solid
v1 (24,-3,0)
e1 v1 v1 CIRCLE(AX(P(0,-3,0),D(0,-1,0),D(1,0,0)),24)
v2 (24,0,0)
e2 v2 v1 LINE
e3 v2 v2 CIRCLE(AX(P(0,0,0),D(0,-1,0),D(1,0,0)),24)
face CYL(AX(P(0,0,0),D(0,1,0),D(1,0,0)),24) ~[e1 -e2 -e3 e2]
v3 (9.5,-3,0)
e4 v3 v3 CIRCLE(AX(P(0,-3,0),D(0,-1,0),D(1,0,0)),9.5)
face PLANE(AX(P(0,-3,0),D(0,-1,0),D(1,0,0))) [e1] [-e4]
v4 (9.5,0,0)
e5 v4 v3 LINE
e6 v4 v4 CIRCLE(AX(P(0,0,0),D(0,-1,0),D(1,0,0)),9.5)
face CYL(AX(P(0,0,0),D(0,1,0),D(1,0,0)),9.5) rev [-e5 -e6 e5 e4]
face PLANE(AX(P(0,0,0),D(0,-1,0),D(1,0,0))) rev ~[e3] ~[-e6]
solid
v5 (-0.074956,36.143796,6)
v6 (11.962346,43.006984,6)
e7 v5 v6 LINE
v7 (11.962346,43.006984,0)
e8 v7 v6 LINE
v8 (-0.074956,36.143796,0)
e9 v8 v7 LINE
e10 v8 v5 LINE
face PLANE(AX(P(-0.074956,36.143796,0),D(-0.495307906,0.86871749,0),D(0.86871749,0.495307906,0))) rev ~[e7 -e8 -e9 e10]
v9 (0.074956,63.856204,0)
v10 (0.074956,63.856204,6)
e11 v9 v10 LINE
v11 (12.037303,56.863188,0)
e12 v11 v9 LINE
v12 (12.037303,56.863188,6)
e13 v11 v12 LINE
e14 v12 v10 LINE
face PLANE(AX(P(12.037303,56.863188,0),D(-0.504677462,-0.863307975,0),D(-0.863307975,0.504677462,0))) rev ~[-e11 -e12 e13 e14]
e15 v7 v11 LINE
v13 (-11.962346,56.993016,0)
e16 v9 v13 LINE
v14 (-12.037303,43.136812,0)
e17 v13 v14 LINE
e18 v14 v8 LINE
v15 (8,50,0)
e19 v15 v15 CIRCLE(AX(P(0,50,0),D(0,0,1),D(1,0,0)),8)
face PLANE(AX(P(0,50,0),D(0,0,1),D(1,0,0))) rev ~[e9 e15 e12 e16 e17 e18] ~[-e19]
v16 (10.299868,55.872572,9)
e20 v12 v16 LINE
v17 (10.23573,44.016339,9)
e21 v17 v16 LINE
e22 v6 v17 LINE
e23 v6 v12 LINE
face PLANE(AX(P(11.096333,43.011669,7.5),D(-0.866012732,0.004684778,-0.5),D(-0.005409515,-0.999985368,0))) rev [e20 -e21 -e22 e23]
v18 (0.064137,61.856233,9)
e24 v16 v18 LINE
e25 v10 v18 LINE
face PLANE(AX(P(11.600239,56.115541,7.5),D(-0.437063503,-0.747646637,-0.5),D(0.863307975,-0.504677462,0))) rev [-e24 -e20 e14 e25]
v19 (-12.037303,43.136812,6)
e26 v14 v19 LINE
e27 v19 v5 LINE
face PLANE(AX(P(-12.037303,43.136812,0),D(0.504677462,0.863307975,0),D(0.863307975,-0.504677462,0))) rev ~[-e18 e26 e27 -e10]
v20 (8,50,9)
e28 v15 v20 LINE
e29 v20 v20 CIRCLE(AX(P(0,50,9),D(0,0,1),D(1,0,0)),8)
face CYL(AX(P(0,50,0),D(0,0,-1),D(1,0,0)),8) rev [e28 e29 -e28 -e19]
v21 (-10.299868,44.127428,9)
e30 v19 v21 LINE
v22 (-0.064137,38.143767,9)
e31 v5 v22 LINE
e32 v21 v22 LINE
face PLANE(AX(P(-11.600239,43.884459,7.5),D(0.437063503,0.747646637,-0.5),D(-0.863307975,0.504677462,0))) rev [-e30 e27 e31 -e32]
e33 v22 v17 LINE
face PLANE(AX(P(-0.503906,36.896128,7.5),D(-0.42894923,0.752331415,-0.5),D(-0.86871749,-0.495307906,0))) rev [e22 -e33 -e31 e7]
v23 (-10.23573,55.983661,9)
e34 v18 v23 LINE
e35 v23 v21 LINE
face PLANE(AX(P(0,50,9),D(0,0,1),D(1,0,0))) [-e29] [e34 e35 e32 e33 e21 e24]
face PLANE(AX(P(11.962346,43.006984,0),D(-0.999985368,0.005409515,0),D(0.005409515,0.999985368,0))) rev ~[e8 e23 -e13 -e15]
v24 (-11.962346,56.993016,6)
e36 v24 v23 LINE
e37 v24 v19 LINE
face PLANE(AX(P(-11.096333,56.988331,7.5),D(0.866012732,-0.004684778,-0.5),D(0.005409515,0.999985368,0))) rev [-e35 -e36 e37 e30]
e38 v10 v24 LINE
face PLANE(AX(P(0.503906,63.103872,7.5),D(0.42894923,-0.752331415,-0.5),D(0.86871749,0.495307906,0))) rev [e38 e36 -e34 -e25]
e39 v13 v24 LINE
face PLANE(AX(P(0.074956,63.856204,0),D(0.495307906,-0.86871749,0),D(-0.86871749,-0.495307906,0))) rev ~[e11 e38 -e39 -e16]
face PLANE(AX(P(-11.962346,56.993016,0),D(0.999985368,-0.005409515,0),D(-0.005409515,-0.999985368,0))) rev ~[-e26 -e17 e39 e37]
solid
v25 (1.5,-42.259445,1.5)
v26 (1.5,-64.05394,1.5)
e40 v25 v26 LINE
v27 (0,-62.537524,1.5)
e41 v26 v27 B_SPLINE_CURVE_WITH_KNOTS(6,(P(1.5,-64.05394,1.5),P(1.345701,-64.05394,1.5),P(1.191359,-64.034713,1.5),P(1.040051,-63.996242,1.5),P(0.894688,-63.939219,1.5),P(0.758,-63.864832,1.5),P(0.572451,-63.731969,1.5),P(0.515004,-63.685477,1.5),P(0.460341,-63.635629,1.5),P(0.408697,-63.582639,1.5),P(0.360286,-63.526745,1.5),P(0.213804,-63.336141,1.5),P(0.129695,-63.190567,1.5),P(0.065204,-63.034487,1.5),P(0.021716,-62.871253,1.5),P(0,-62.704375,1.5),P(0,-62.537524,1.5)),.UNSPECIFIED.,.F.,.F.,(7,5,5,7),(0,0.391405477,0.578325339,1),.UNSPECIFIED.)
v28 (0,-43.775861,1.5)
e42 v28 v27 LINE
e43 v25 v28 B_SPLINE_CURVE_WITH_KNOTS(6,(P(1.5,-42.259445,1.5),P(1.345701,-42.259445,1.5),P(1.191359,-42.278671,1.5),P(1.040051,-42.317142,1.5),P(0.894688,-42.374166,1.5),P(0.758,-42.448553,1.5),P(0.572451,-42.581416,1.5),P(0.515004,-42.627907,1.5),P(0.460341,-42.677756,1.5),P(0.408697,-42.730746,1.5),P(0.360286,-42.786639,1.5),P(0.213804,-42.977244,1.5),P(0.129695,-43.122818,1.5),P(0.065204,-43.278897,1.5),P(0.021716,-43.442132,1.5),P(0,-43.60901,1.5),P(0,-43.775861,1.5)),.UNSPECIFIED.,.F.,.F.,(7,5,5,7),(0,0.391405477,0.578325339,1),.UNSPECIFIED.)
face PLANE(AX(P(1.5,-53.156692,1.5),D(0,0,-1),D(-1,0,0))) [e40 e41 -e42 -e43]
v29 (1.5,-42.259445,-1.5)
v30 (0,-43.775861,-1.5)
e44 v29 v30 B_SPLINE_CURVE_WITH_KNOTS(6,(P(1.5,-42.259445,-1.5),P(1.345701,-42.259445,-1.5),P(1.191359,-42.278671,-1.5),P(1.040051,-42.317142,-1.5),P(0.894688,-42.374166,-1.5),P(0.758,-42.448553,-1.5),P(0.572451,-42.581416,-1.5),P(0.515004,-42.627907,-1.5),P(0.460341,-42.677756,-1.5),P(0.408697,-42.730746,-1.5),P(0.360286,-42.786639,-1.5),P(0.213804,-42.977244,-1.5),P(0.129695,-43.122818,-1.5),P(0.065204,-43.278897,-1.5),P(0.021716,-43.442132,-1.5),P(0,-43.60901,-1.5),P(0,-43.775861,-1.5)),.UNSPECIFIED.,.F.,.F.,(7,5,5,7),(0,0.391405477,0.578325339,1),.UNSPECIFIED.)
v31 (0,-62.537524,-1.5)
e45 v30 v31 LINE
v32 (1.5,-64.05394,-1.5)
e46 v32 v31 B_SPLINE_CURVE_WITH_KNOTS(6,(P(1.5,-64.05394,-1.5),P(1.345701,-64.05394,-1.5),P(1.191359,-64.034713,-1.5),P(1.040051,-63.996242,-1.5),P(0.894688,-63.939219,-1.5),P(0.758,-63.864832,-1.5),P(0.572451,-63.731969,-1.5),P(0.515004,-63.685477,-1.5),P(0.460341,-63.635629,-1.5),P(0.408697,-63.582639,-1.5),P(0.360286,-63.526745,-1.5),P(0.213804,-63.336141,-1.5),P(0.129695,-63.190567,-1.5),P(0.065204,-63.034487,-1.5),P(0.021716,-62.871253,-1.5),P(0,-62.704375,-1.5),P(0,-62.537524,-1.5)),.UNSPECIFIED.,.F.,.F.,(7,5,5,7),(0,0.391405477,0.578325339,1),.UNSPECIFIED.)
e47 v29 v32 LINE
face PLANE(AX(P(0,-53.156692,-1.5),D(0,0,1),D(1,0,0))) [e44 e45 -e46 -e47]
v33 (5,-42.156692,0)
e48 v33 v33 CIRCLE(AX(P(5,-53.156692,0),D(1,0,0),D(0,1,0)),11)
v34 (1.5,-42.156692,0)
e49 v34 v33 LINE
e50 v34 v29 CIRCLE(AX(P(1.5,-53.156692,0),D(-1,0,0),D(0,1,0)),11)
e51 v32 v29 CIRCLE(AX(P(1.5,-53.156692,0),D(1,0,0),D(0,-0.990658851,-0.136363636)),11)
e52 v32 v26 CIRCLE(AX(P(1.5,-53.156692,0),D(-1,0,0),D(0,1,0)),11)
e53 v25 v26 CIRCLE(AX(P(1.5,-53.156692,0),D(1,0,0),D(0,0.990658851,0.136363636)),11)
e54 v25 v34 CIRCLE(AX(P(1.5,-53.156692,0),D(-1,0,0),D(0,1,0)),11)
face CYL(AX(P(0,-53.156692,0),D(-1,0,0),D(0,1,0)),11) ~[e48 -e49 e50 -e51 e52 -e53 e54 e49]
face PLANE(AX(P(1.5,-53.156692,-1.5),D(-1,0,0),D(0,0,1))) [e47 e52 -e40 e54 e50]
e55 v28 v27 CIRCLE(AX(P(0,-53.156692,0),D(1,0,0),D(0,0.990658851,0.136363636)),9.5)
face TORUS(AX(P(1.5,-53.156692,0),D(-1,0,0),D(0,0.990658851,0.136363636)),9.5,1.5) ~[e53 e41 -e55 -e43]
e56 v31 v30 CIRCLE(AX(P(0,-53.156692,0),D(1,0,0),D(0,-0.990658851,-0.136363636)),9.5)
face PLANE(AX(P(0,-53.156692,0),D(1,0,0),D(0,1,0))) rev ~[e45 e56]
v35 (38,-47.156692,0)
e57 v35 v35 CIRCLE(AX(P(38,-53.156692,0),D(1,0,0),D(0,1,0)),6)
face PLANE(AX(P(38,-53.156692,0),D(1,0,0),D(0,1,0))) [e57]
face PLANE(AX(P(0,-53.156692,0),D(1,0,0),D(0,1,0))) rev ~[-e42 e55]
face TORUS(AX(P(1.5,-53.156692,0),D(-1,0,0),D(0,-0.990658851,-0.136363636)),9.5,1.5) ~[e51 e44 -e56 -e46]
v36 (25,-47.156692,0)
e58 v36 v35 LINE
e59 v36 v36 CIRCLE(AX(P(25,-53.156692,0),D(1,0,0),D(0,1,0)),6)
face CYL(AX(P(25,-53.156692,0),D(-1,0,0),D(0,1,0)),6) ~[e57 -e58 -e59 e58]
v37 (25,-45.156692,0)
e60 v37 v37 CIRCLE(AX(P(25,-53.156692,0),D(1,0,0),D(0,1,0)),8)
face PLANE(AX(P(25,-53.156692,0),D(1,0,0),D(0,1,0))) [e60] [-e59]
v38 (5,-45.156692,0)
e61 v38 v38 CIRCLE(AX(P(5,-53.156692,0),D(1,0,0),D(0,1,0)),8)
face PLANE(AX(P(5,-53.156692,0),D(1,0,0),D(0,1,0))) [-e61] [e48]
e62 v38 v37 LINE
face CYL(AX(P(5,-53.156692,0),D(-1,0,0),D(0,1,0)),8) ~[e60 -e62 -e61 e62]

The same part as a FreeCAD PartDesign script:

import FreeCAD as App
import Part
import Sketcher
from FreeCAD import Vector
Q = App.Units.Quantity


def edges_at(feature, points):
    """Names of the edges that pass closest to the given points."""
    edges = feature.Shape.Edges
    near = lambda p: min(range(len(edges)), key=lambda i: edges[i].distToShape(Part.Vertex(*p))[0])
    return sorted({f"Edge{near(p) + 1}" for p in points})


def add_polygon(sketch, points):
    """Adds a closed chain of lines whose ends are joined by coincident constraints."""
    first, n = sketch.GeometryCount, len(points)
    for a, b in zip(points, points[1:] + points[:1]):
        sketch.addGeometry(Part.LineSegment(App.Vector(*a, 0), App.Vector(*b, 0)), False)
    for i in range(n):
        sketch.addConstraint(Sketcher.Constraint("Coincident", first + i, 2, first + (i + 1) % n, 1))

doc = App.newDocument("Part")
body = doc.addObject("PartDesign::Body", "Body")

sketch1 = body.newObject("Sketcher::SketchObject", "Sketch")
sketch1.AttachmentSupport = (doc.getObject("XZ_Plane"), [""])
sketch1.MapMode = "FlatFace"
sketch1.addGeometry([
    Part.Circle(Vector(0, 0, 0), Vector(0, 0, 1), 24),
    Part.Circle(Vector(0, 0, 0), Vector(0, 0, 1), 10),
], False)
sketch1.addConstraint([
    Sketcher.Constraint("Coincident", 0, 3, -1, 1),
    Sketcher.Constraint("Coincident", 1, 3, -1, 1),
    Sketcher.Constraint("Diameter", 0, Q("48 mm")),
    Sketcher.Constraint("Diameter", 1, Q("19 mm")),
])
pad1 = body.newObject("PartDesign::Pad", "Pad")
pad1.Profile = sketch1
pad1.Length = 3
body2 = doc.addObject("PartDesign::Body", "Body001")

sketch2 = body2.newObject("Sketcher::SketchObject", "Sketch001")
sketch2.AttachmentSupport = (doc.getObject("XY_Plane001"), [""])
sketch2.MapMode = "FlatFace"
add_polygon(sketch2, [(0, 64), (-12, 57), (-12, 43), (0, 36), (12, 43), (12, 57)])
sketch2.addGeometry(Part.Circle(Vector(0, 50, 0), Vector(0, 0, 1), 8), False)
sketch2.addConstraint([
    Sketcher.Constraint("PointOnObject", 6, 3, -2),
    Sketcher.Constraint("Parallel", 0, 3),
    Sketcher.Constraint("Parallel", 1, 4),
    Sketcher.Constraint("Parallel", 2, 5),
    Sketcher.Constraint("Equal", 0, 1),
    Sketcher.Constraint("Equal", 1, 2),
    Sketcher.Constraint("Equal", 2, 3),
    Sketcher.Constraint("Diameter", 6, Q("16 mm")),
    Sketcher.Constraint("DistanceY", -1, 1, 6, 3, Q("50 mm")),
    Sketcher.Constraint("DistanceX", 0, 2, 2, 2, Q("11.88739 mm")),
    Sketcher.Constraint("DistanceY", 2, 2, 0, 2, Q("20.84922 mm")),
    Sketcher.Constraint("DistanceX", 1, 2, 3, 2, Q("23.999649 mm")),
    Sketcher.Constraint("DistanceY", 3, 2, 1, 2, Q("0.129828 mm")),
    Sketcher.Constraint("DistanceX", 0, 2, -1, 1, Q("11.962346 mm")),
    Sketcher.Constraint("DistanceY", -1, 1, 0, 2, Q("56.993016 mm")),
])
pad2 = body2.newObject("PartDesign::Pad", "Pad001")
pad2.Profile = sketch2
pad2.Length = 9
doc.recompute()

chamfer = body2.newObject("PartDesign::Chamfer", "Chamfer")
chamfer.Base = (pad2, edges_at(pad2, [
    (12, 49.935, 9),
    (5.944, 39.575, 9),
    (-6.056, 39.64, 9),
    (6.056, 60.36, 9),
    (-5.944, 60.425, 9),
    (-12, 50.065, 9),
]))
chamfer.ChamferType = "Two distances"
chamfer.Size = 3
chamfer.Size2 = 1.732051
body3 = doc.addObject("PartDesign::Body", "Body002")

sketch3 = body3.newObject("Sketcher::SketchObject", "Sketch002")
sketch3.AttachmentSupport = (doc.getObject("YZ_Plane002"), [""])
sketch3.MapMode = "FlatFace"
sketch3.addGeometry(Part.Circle(Vector(-53, 0, 0), Vector(0, 0, 1), 11), False)
sketch3.addConstraint([
    Sketcher.Constraint("PointOnObject", 0, 3, -1),
    Sketcher.Constraint("Diameter", 0, Q("22 mm")),
    Sketcher.Constraint("DistanceX", 0, 3, -1, 1, Q("53.156692 mm")),
])
pad3 = body3.newObject("PartDesign::Pad", "Pad002")
pad3.Profile = sketch3
pad3.Length = 5

sketch4 = body3.newObject("Sketcher::SketchObject", "Sketch003")
sketch4.AttachmentSupport = (doc.getObject("YZ_Plane002"), [""])
sketch4.MapMode = "FlatFace"
sketch4.AttachmentOffset = App.Placement(Vector(0, 0, 5), App.Rotation())
sketch4.addGeometry(Part.Circle(Vector(-53, 0, 0), Vector(0, 0, 1), 8), False)
sketch4.addConstraint([
    Sketcher.Constraint("PointOnObject", 0, 3, -1),
    Sketcher.Constraint("Diameter", 0, Q("16 mm")),
    Sketcher.Constraint("DistanceX", 0, 3, -1, 1, Q("53.156692 mm")),
])
pad4 = body3.newObject("PartDesign::Pad", "Pad003")
pad4.Profile = sketch4
pad4.Length = 20

sketch5 = body3.newObject("Sketcher::SketchObject", "Sketch004")
sketch5.AttachmentSupport = (doc.getObject("YZ_Plane002"), [""])
sketch5.MapMode = "FlatFace"
sketch5.AttachmentOffset = App.Placement(Vector(0, 0, 25), App.Rotation())
sketch5.addGeometry(Part.Circle(Vector(-53, 0, 0), Vector(0, 0, 1), 6), False)
sketch5.addConstraint([
    Sketcher.Constraint("PointOnObject", 0, 3, -1),
    Sketcher.Constraint("Diameter", 0, Q("12 mm")),
    Sketcher.Constraint("DistanceX", 0, 3, -1, 1, Q("53.156692 mm")),
])
pad5 = body3.newObject("PartDesign::Pad", "Pad004")
pad5.Profile = sketch5
pad5.Length = 13

sketch6 = body3.newObject("Sketcher::SketchObject", "Sketch005")
sketch6.AttachmentSupport = (doc.getObject("XZ_Plane002"), [""])
sketch6.MapMode = "FlatFace"
sketch6.AttachmentOffset = App.Placement(Vector(0, 0, 53.156692), App.Rotation())
add_polygon(sketch6, [(1.5, 1.5), (0, 1.5), (0, -1.5), (1.5, -1.5)])
sketch6.addConstraint([
    Sketcher.Constraint("Horizontal", 0),
    Sketcher.Constraint("Vertical", 1),
    Sketcher.Constraint("Horizontal", 2),
    Sketcher.Constraint("Vertical", 3),
    Sketcher.Constraint("Symmetric", 0, 2, 1, 2, -1, 1),
    Sketcher.Constraint("DistanceY", 1, 2, 1, 1, Q("3 mm")),
    Sketcher.Constraint("DistanceX", 0, 2, 0, 1, Q("1.5 mm")),
])
pocket1 = body3.newObject("PartDesign::Pocket", "Pocket")
pocket1.Profile = sketch6
pocket1.Type = "ThroughAll"
pocket1.Midplane = True
doc.recompute()

fillet = body3.newObject("PartDesign::Fillet", "Fillet")
fillet.Base = (pocket1, edges_at(pocket1, [(0, -53.157, 11), (0, -53.157, -11)]))
fillet.Radius = 1.5

doc.recompute()
